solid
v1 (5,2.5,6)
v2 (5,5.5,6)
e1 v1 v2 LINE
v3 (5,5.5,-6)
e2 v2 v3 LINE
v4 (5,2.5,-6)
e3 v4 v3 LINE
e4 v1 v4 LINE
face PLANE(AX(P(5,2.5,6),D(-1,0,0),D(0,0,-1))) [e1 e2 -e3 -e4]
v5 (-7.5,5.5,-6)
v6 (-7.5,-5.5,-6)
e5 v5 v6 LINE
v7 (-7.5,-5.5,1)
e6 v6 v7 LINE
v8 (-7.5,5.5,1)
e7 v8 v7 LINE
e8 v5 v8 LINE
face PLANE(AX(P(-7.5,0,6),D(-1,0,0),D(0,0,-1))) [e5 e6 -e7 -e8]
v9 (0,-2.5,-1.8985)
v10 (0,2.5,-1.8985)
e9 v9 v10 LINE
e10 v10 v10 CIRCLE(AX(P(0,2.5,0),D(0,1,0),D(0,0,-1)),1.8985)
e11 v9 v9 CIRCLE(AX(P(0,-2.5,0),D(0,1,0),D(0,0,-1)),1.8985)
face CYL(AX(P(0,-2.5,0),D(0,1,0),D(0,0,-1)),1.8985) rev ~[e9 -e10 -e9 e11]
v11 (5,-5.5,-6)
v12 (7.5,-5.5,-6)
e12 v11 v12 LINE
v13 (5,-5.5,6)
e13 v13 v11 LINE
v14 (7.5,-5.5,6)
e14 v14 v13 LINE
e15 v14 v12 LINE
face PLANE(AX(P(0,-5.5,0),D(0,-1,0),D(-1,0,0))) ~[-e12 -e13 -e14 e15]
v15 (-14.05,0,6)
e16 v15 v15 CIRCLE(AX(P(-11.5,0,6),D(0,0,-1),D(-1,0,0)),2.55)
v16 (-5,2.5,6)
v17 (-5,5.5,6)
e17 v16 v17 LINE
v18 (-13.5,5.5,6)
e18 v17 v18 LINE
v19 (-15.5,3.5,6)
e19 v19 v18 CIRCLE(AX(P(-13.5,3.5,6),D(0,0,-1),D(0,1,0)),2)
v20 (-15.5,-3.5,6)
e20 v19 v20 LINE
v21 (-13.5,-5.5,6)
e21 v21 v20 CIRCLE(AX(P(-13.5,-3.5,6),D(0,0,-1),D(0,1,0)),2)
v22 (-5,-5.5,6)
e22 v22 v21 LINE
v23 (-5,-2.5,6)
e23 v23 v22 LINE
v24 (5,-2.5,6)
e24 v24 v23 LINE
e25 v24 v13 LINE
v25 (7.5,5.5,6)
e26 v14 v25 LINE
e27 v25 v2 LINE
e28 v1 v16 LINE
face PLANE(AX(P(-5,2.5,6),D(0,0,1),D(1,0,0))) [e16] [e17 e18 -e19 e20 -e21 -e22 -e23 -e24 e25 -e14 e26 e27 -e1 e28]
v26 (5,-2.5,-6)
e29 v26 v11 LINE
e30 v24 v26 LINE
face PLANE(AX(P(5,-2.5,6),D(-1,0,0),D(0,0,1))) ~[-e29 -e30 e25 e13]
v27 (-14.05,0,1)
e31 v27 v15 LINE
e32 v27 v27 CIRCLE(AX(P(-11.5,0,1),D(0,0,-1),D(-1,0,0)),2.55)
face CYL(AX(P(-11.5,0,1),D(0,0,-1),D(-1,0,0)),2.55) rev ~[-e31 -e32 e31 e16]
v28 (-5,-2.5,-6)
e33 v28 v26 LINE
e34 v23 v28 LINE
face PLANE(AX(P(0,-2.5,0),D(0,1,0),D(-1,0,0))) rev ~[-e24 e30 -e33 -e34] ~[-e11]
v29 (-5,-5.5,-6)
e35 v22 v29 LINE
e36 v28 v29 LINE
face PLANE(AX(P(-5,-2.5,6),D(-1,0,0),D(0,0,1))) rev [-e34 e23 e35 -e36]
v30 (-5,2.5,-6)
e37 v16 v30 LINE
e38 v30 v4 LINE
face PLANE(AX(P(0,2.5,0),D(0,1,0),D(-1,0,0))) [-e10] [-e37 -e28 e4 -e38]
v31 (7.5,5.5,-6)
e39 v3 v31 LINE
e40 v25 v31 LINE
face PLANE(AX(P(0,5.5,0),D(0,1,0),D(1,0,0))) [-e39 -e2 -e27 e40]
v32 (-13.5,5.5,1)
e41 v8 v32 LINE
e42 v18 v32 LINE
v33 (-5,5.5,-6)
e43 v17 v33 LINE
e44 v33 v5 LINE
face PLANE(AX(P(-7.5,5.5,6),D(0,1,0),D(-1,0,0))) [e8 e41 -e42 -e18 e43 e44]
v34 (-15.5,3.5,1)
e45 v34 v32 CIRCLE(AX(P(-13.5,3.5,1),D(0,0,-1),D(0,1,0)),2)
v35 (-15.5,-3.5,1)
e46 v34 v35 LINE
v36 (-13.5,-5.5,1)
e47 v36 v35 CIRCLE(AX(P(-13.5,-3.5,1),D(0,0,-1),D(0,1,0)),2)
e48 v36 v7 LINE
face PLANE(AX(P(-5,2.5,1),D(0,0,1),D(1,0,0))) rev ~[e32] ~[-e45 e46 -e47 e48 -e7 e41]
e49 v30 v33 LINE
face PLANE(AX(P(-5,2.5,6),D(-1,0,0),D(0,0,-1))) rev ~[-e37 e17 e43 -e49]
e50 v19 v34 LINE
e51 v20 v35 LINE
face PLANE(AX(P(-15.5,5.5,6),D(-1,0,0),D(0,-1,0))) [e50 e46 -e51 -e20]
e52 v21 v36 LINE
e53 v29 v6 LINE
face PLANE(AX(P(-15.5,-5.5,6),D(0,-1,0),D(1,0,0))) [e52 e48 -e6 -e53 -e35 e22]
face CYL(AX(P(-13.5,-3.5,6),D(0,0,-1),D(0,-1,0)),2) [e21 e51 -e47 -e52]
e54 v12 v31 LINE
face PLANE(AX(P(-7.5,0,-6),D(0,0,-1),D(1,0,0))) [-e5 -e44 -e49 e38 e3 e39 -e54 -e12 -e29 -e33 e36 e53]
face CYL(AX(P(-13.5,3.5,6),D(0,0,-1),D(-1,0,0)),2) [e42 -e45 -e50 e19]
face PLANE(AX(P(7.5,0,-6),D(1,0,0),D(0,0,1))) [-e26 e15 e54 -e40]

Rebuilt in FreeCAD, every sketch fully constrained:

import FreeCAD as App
import Part
import Sketcher

V = App.Vector
Q = App.Units.Quantity


def edges_at(feature, points):
    """Names of the edges that pass closest to the given points."""
    edges = feature.Shape.Edges
    near = lambda p: min(range(len(edges)), key=lambda i: edges[i].distToShape(Part.Vertex(*p))[0])
    return sorted({f"Edge{near(p) + 1}" for p in points})

doc = App.newDocument("Part")
body = doc.addObject("PartDesign::Body", "Body")

# Sketch on XZ plane
sketch1 = doc.addObject("Sketcher::SketchObject", "Sketch")
body.addObject(sketch1)
sketch1.AttachmentSupport = (doc.XZ_Plane, [""])
sketch1.MapMode = "FlatFace"
sketch1.addGeometry(Part.LineSegment(V(-7.5, 6, 0), V(7.5, 6, 0)), False)
sketch1.addGeometry(Part.LineSegment(V(7.5, 6, 0), V(7.5, -6, 0)), False)
sketch1.addGeometry(Part.LineSegment(V(7.5, -6, 0), V(-7.5, -6, 0)), False)
sketch1.addGeometry(Part.LineSegment(V(-7.5, -6, 0), V(-7.5, 6, 0)), False)
sketch1.addConstraint(Sketcher.Constraint("Coincident", 0, 2, 1, 1))
sketch1.addConstraint(Sketcher.Constraint("Coincident", 1, 2, 2, 1))
sketch1.addConstraint(Sketcher.Constraint("Coincident", 2, 2, 3, 1))
sketch1.addConstraint(Sketcher.Constraint("Coincident", 3, 2, 0, 1))
sketch1.addConstraint(Sketcher.Constraint("Horizontal", 0))
sketch1.addConstraint(Sketcher.Constraint("Vertical", 1))
sketch1.addConstraint(Sketcher.Constraint("Horizontal", 2))
sketch1.addConstraint(Sketcher.Constraint("Vertical", 3))
sketch1.addConstraint(Sketcher.Constraint("Symmetric", 0, 2, 2, 2, -1, 1))
sketch1.addConstraint(Sketcher.Constraint("DistanceX", 0, 1, 0, 2, Q("15 mm")))
sketch1.addConstraint(Sketcher.Constraint("DistanceY", 1, 2, 1, 1, Q("12 mm")))
pad1 = doc.addObject("PartDesign::Pad", "Pad")
body.addObject(pad1)
pad1.Profile = sketch1
pad1.Length = 5
pad1.Midplane = True

# Sketch on XZ plane
sketch2 = doc.addObject("Sketcher::SketchObject", "Sketch001")
body.addObject(sketch2)
sketch2.AttachmentSupport = (doc.XZ_Plane, [""])
sketch2.MapMode = "FlatFace"
sketch2.AttachmentOffset = App.Placement(V(0, 0, -2.5), App.Rotation())
sketch2.addGeometry(Part.LineSegment(V(-5, 6, 0), V(-5, -6, 0)), False)
sketch2.addGeometry(Part.LineSegment(V(-5, -6, 0), V(-7.5, -6, 0)), False)
sketch2.addGeometry(Part.LineSegment(V(-7.5, -6, 0), V(-7.5, 6, 0)), False)
sketch2.addGeometry(Part.LineSegment(V(-7.5, 6, 0), V(-5, 6, 0)), False)
sketch2.addGeometry(Part.LineSegment(V(5, 6, 0), V(7.5, 6, 0)), False)
sketch2.addGeometry(Part.LineSegment(V(7.5, 6, 0), V(7.5, -6, 0)), False)
sketch2.addGeometry(Part.LineSegment(V(7.5, -6, 0), V(5, -6, 0)), False)
sketch2.addGeometry(Part.LineSegment(V(5, -6, 0), V(5, 6, 0)), False)
sketch2.addConstraint(Sketcher.Constraint("Coincident", 0, 2, 1, 1))
sketch2.addConstraint(Sketcher.Constraint("Coincident", 1, 2, 2, 1))
sketch2.addConstraint(Sketcher.Constraint("Coincident", 2, 2, 3, 1))
sketch2.addConstraint(Sketcher.Constraint("Coincident", 3, 2, 0, 1))
sketch2.addConstraint(Sketcher.Constraint("Coincident", 4, 2, 5, 1))
sketch2.addConstraint(Sketcher.Constraint("Coincident", 5, 2, 6, 1))
sketch2.addConstraint(Sketcher.Constraint("Coincident", 6, 2, 7, 1))
sketch2.addConstraint(Sketcher.Constraint("Coincident", 7, 2, 4, 1))
sketch2.addConstraint(Sketcher.Constraint("Vertical", 0))
sketch2.addConstraint(Sketcher.Constraint("Horizontal", 1))
sketch2.addConstraint(Sketcher.Constraint("Vertical", 2))
sketch2.addConstraint(Sketcher.Constraint("Horizontal", 3))
sketch2.addConstraint(Sketcher.Constraint("Horizontal", 4))
sketch2.addConstraint(Sketcher.Constraint("Vertical", 5))
sketch2.addConstraint(Sketcher.Constraint("Horizontal", 6))
sketch2.addConstraint(Sketcher.Constraint("Vertical", 7))
sketch2.addConstraint(Sketcher.Constraint("Symmetric", 1, 2, 4, 2, -1, 1))
sketch2.addConstraint(Sketcher.Constraint("Symmetric", 3, 2, 6, 2, -1, 1))
sketch2.addConstraint(Sketcher.Constraint("Horizontal", 3, 2, 4, 2))
sketch2.addConstraint(Sketcher.Constraint("DistanceX", 0, 2, 6, 2, Q("10 mm")))
sketch2.addConstraint(Sketcher.Constraint("DistanceY", 0, 2, 0, 1, Q("12 mm")))
sketch2.addConstraint(Sketcher.Constraint("DistanceX", 1, 2, 1, 1, Q("2.5 mm")))
pad2 = doc.addObject("PartDesign::Pad", "Pad001")
body.addObject(pad2)
pad2.Profile = sketch2
pad2.Length = 3
pad2.Reversed = True

# Sketch on XZ plane
sketch3 = doc.addObject("Sketcher::SketchObject", "Sketch002")
body.addObject(sketch3)
sketch3.AttachmentSupport = (doc.XZ_Plane, [""])
sketch3.MapMode = "FlatFace"
sketch3.AttachmentOffset = App.Placement(V(0, 0, 2.5), App.Rotation())
sketch3.addGeometry(Part.Circle(V(0, 0, 0), V(0, 0, 1), 1.8985), False)
sketch3.addConstraint(Sketcher.Constraint("Coincident", 0, 3, -1, 1))
sketch3.addConstraint(Sketcher.Constraint("Diameter", 0, Q("3.797 mm")))
doc.recompute()
hole = doc.addObject("PartDesign::Hole", "Hole")
body.addObject(hole)
hole.Profile = sketch3
hole.ThreadType = "None"
hole.Diameter = 3.797
hole.DepthType = "ThroughAll"
doc.recompute()

mirrored = doc.addObject("PartDesign::Mirrored", "Mirrored")
body.addObject(mirrored)
mirrored.TransformMode = "Transform body"
mirrored.MirrorPlane = (doc.XZ_Plane, [""])
body.Tip = mirrored

# Sketch on XY plane
sketch4 = doc.addObject("Sketcher::SketchObject", "Sketch003")
body.addObject(sketch4)
sketch4.AttachmentSupport = (doc.XY_Plane, [""])
sketch4.MapMode = "FlatFace"
sketch4.AttachmentOffset = App.Placement(V(0, 0, 6), App.Rotation())
sketch4.addGeometry(Part.LineSegment(V(-7.5, -5.5, 0), V(-7.5, 5.5, 0)), False)
sketch4.addGeometry(Part.LineSegment(V(-7.5, 5.5, 0), V(-15.5, 5.5, 0)), False)
sketch4.addGeometry(Part.LineSegment(V(-15.5, 5.5, 0), V(-15.5, -5.5, 0)), False)
sketch4.addGeometry(Part.LineSegment(V(-15.5, -5.5, 0), V(-7.5, -5.5, 0)), False)
sketch4.addConstraint(Sketcher.Constraint("Coincident", 0, 2, 1, 1))
sketch4.addConstraint(Sketcher.Constraint("Coincident", 1, 2, 2, 1))
sketch4.addConstraint(Sketcher.Constraint("Coincident", 2, 2, 3, 1))
sketch4.addConstraint(Sketcher.Constraint("Coincident", 3, 2, 0, 1))
sketch4.addConstraint(Sketcher.Constraint("Vertical", 0))
sketch4.addConstraint(Sketcher.Constraint("Horizontal", 1))
sketch4.addConstraint(Sketcher.Constraint("Vertical", 2))
sketch4.addConstraint(Sketcher.Constraint("Horizontal", 3))
sketch4.addConstraint(Sketcher.Constraint("DistanceX", 1, 2, 1, 1, Q("8 mm")))
sketch4.addConstraint(Sketcher.Constraint("DistanceY", 0, 1, 0, 2, Q("11 mm")))
sketch4.addConstraint(Sketcher.Constraint("DistanceX", 0, 2, -1, 1, Q("7.5 mm")))
sketch4.addConstraint(Sketcher.Constraint("DistanceY", -1, 1, 0, 2, Q("5.5 mm")))
pad3 = doc.addObject("PartDesign::Pad", "Pad002")
body.addObject(pad3)
pad3.Profile = sketch4
pad3.Length = 5
pad3.Reversed = True

# Sketch on XY plane
sketch5 = doc.addObject("Sketcher::SketchObject", "Sketch004")
body.addObject(sketch5)
sketch5.AttachmentSupport = (doc.XY_Plane, [""])
sketch5.MapMode = "FlatFace"
sketch5.AttachmentOffset = App.Placement(V(0, 0, 1), App.Rotation())
sketch5.addGeometry(Part.Circle(V(-11.5, 0, 0), V(0, 0, 1), 2.55), False)
sketch5.addConstraint(Sketcher.Constraint("PointOnObject", 0, 3, -1))
sketch5.addConstraint(Sketcher.Constraint("Diameter", 0, Q("5.1 mm")))
sketch5.addConstraint(Sketcher.Constraint("DistanceX", 0, 3, -1, 1, Q("11.5 mm")))
pocket1 = doc.addObject("PartDesign::Pocket", "Pocket")
body.addObject(pocket1)
pocket1.Profile = sketch5
pocket1.Type = "ThroughAll"
pocket1.Reversed = True
doc.recompute()

fillet = doc.addObject("PartDesign::Fillet", "Fillet")
body.addObject(fillet)
fillet.Base = (pocket1, edges_at(pocket1, [(-15.5, 5.5, 3.5), (-15.5, -5.5, 3.5)]))
fillet.Radius = 2

doc.recompute()
